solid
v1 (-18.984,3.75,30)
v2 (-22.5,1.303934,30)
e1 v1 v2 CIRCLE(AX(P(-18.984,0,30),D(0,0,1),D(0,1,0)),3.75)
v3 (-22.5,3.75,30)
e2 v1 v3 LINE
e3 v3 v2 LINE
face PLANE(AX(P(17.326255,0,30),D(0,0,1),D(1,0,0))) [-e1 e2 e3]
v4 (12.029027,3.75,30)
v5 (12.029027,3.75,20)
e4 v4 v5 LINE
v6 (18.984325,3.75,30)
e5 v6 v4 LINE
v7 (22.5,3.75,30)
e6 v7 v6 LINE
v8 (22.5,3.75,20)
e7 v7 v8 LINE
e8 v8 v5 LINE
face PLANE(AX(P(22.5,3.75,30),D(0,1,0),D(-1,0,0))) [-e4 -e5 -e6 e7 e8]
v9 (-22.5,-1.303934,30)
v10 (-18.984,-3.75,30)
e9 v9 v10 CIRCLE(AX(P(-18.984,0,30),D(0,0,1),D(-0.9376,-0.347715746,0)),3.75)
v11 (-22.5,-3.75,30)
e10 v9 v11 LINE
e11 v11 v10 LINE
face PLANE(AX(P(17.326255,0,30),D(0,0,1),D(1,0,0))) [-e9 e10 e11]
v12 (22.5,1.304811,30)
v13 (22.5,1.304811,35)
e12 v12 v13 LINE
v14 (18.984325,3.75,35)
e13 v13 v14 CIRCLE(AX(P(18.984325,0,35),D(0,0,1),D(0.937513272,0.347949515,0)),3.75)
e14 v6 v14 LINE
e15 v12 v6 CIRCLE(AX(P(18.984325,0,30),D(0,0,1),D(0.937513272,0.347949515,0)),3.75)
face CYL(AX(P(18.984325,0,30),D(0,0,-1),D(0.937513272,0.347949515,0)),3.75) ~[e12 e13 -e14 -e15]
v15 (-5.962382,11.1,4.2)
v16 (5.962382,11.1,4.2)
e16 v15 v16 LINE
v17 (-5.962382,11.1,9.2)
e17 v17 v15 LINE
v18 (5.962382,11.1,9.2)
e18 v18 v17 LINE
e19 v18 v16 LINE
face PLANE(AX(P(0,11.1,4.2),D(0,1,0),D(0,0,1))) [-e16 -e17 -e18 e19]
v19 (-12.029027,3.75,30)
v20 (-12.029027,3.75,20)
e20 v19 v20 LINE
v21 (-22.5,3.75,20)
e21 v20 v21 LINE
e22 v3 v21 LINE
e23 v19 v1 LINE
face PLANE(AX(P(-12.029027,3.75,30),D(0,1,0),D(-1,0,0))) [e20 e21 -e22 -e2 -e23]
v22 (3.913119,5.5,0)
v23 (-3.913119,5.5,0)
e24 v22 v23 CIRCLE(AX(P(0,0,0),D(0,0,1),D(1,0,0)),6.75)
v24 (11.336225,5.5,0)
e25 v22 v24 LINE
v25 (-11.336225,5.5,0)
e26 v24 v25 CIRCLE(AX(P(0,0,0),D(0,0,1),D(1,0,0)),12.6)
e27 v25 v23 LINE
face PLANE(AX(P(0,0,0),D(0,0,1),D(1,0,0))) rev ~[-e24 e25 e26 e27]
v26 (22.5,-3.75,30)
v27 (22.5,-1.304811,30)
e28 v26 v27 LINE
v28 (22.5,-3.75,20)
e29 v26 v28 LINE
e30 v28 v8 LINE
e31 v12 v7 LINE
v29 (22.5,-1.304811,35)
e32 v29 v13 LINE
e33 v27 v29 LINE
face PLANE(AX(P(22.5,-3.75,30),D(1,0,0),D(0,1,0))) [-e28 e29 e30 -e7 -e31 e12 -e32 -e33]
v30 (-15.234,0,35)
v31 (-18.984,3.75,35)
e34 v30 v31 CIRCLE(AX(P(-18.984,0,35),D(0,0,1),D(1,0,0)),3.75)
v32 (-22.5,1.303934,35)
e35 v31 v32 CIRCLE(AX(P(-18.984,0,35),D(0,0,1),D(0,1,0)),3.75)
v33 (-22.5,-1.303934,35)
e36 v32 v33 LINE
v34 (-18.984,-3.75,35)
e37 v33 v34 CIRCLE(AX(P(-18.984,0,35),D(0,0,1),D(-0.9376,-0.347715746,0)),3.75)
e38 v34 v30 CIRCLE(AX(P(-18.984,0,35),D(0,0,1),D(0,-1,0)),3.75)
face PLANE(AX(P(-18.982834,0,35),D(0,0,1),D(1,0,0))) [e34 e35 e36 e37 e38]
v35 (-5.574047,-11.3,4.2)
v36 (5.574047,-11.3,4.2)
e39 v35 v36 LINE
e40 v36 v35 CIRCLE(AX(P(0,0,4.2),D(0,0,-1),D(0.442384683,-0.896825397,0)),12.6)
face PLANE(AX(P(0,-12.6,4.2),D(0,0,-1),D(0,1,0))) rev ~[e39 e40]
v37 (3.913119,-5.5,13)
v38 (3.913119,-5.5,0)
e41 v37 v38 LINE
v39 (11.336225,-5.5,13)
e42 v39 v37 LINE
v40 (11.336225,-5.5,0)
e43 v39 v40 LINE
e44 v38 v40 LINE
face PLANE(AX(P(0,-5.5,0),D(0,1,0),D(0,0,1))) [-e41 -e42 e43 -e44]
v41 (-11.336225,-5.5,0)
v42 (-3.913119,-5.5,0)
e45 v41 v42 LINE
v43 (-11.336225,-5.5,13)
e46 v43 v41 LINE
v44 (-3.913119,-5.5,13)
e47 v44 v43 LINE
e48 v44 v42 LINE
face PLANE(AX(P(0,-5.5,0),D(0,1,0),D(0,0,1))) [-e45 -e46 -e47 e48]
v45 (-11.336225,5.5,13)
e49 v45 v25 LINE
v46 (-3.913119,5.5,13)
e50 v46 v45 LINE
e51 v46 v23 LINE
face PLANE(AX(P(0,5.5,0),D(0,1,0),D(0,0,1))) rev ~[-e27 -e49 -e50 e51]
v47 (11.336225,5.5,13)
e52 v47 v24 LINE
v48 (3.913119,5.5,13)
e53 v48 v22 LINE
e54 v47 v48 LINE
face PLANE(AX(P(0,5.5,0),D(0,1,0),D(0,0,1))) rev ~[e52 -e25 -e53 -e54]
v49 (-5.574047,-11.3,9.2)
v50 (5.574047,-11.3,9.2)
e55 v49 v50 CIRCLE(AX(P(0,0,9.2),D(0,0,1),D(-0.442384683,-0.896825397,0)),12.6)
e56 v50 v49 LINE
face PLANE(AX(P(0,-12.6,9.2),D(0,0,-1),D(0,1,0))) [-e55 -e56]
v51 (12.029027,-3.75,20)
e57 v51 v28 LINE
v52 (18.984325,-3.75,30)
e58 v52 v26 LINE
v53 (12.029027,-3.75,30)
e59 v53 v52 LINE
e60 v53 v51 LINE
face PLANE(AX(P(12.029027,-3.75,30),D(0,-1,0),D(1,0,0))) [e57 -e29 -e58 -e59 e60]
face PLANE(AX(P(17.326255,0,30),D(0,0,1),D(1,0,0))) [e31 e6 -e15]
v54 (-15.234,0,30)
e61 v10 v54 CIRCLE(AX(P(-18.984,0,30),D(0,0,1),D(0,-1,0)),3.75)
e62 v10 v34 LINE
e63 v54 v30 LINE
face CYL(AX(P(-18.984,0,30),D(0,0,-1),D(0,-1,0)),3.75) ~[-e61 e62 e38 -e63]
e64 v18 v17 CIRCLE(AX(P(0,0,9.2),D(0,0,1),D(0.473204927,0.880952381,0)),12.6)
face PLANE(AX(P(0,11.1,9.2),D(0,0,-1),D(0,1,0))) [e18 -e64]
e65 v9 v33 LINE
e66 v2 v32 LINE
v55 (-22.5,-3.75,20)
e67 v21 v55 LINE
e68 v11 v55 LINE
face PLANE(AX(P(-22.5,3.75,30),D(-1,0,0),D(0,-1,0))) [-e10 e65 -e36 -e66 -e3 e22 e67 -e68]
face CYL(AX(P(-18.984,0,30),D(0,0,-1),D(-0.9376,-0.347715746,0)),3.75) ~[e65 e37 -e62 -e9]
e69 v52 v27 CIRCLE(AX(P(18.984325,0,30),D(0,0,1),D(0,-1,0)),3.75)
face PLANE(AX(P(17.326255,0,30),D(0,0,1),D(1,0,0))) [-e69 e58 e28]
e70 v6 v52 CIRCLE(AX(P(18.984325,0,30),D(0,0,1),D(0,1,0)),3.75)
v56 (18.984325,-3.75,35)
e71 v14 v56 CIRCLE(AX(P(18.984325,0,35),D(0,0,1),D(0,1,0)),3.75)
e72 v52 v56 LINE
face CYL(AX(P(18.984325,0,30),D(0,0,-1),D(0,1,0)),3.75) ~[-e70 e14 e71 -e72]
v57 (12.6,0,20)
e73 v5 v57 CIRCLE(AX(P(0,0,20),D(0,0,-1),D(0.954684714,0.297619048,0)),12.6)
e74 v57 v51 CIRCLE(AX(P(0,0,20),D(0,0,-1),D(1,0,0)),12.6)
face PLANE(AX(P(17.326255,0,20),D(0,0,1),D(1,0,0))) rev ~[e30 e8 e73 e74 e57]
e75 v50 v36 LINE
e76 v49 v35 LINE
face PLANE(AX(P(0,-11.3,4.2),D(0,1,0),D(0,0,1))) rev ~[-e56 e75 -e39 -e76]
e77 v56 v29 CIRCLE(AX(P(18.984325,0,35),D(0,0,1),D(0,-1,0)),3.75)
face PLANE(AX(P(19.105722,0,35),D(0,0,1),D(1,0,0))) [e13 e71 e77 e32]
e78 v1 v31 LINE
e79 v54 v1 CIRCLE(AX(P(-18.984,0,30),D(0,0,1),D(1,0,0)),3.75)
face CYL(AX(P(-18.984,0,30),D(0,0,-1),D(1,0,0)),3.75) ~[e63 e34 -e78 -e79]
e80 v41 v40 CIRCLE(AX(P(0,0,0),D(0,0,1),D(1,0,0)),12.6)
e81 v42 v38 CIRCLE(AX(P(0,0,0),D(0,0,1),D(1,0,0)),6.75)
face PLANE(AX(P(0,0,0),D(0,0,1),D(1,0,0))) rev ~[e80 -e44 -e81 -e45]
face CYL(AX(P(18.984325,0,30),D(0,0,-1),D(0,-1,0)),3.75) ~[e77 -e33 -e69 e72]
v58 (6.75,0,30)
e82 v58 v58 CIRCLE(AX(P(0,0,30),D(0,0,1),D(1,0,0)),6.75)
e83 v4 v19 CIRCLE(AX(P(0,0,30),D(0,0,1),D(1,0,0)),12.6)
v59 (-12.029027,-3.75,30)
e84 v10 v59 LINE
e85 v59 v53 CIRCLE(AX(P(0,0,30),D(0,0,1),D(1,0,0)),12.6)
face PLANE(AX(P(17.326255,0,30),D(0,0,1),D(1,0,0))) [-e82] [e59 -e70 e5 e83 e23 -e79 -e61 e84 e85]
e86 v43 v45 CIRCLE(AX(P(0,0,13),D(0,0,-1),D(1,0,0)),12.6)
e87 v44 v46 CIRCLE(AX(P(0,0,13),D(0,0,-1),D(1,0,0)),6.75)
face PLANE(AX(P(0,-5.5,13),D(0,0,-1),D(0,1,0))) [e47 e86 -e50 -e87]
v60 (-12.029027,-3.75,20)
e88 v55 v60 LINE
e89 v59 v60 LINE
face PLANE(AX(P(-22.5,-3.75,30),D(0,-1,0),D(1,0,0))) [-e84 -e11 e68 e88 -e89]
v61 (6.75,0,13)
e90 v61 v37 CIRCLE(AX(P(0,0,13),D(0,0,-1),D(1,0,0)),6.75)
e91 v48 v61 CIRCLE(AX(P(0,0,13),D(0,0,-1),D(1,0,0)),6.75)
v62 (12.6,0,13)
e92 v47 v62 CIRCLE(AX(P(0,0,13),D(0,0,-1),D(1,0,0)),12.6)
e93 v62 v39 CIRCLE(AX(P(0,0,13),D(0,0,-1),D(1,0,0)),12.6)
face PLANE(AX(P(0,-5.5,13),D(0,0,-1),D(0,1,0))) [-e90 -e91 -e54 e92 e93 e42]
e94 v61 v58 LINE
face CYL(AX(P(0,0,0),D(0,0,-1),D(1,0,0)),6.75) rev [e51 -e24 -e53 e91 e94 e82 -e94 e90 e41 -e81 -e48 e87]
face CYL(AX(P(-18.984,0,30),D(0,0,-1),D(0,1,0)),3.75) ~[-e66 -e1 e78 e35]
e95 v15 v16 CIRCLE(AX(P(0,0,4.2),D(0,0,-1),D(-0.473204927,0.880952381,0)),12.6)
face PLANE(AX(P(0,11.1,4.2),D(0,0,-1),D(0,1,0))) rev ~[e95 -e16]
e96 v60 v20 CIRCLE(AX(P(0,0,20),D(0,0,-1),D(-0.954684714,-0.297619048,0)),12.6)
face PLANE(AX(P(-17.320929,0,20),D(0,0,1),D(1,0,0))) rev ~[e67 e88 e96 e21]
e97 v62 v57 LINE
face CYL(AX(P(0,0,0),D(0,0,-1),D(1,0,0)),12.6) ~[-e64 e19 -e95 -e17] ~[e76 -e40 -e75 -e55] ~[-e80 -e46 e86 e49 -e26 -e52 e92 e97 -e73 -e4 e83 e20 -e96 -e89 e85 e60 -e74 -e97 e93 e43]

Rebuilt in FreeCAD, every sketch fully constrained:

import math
import FreeCAD as App
import Part
import Sketcher

doc = App.newDocument("Part")
body = doc.addObject("PartDesign::Body", "Body")

# Sketch on XY plane
sketch1 = body.newObject("Sketcher::SketchObject", "Sketch")
sketch1.AttachmentSupport = (doc.getObject("XY_Plane"), [""])
sketch1.MapMode = "FlatFace"
sketch1.addGeometry([
    Part.Circle(App.Vector(0, 0, 0), App.Vector(0, 0, 1), 12.6),
    Part.Circle(App.Vector(0, 0, 0), App.Vector(0, 0, 1), 6.75),
], False)
sketch1.addConstraint([
    Sketcher.Constraint("Coincident", 0, 3, -1, 1),
    Sketcher.Constraint("Coincident", 1, 3, -1, 1),
    Sketcher.Constraint("Diameter", 0, 25.2),
    Sketcher.Constraint("Diameter", 1, 13.5),
])
pad1 = body.newObject("PartDesign::Pad", "Pad")
pad1.Profile = sketch1
pad1.Length = 30
body2 = doc.addObject("PartDesign::Body", "Body001")

# Sketch on YZ plane
sketch2 = body2.newObject("Sketcher::SketchObject", "Sketch001")
sketch2.AttachmentSupport = (doc.getObject("YZ_Plane001"), [""])
sketch2.MapMode = "FlatFace"
sketch2.addGeometry([
    Part.LineSegment(App.Vector(-5.5, 13, 0), App.Vector(-5.5, 0, 0)),
    Part.LineSegment(App.Vector(-5.5, 0, 0), App.Vector(5.5, 0, 0)),
    Part.LineSegment(App.Vector(5.5, 0, 0), App.Vector(5.5, 13, 0)),
    Part.LineSegment(App.Vector(5.5, 13, 0), App.Vector(-5.5, 13, 0)),
], False)
sketch2.addConstraint([
    Sketcher.Constraint("Coincident", 0, 2, 1, 1),
    Sketcher.Constraint("Coincident", 1, 2, 2, 1),
    Sketcher.Constraint("Coincident", 2, 2, 3, 1),
    Sketcher.Constraint("Coincident", 3, 2, 0, 1),
    Sketcher.Constraint("Vertical", 0),
    Sketcher.Constraint("Horizontal", 1),
    Sketcher.Constraint("Vertical", 2),
    Sketcher.Constraint("Horizontal", 3),
    Sketcher.Constraint("Symmetric", 0, 2, 1, 2, -1, 1),
    Sketcher.Constraint("DistanceX", 1, 1, 1, 2, 11.0),
    Sketcher.Constraint("DistanceY", 0, 2, 0, 1, 13.0),
])
pad2 = body2.newObject("PartDesign::Pad", "Pad001")
pad2.Profile = sketch2
pad2.Length = 30
pad2.Midplane = True
doc.recompute()

boolean = body.newObject("PartDesign::Boolean", "Boolean")
boolean.Type = "Cut"
boolean.addObjects([body2])

# Sketch on YZ plane
sketch3 = body.newObject("Sketcher::SketchObject", "Sketch002")
sketch3.AttachmentSupport = (doc.getObject("YZ_Plane"), [""])
sketch3.MapMode = "FlatFace"
sketch3.addGeometry([
    Part.LineSegment(App.Vector(-12.6, 9.2, 0), App.Vector(-12.6, 4.2, 0)),
    Part.LineSegment(App.Vector(-12.6, 4.2, 0), App.Vector(-11.3, 4.2, 0)),
    Part.LineSegment(App.Vector(-11.3, 4.2, 0), App.Vector(-11.3, 9.2, 0)),
    Part.LineSegment(App.Vector(-11.3, 9.2, 0), App.Vector(-12.6, 9.2, 0)),
], False)
sketch3.addConstraint([
    Sketcher.Constraint("Coincident", 0, 2, 1, 1),
    Sketcher.Constraint("Coincident", 1, 2, 2, 1),
    Sketcher.Constraint("Coincident", 2, 2, 3, 1),
    Sketcher.Constraint("Coincident", 3, 2, 0, 1),
    Sketcher.Constraint("Vertical", 0),
    Sketcher.Constraint("Horizontal", 1),
    Sketcher.Constraint("Vertical", 2),
    Sketcher.Constraint("Horizontal", 3),
    Sketcher.Constraint("DistanceY", 0, 2, 0, 1, 5.0),
    Sketcher.Constraint("DistanceX", 1, 1, 1, 2, 1.3),
    Sketcher.Constraint("DistanceX", 0, 2, -1, 1, 12.6),
    Sketcher.Constraint("DistanceY", -1, 1, 0, 2, 4.2),
])
pocket1 = body.newObject("PartDesign::Pocket", "Pocket")
pocket1.Profile = sketch3
pocket1.Length = 25
pocket1.Midplane = True

# Sketch on YZ plane
sketch4 = body.newObject("Sketcher::SketchObject", "Sketch003")
sketch4.AttachmentSupport = (doc.getObject("YZ_Plane"), [""])
sketch4.MapMode = "FlatFace"
sketch4.addGeometry([
    Part.LineSegment(App.Vector(11.1, 9.2, 0), App.Vector(11.1, 4.2, 0)),
    Part.LineSegment(App.Vector(11.1, 4.2, 0), App.Vector(12.6, 4.2, 0)),
    Part.LineSegment(App.Vector(12.6, 4.2, 0), App.Vector(12.6, 9.2, 0)),
    Part.LineSegment(App.Vector(12.6, 9.2, 0), App.Vector(11.1, 9.2, 0)),
], False)
sketch4.addConstraint([
    Sketcher.Constraint("Coincident", 0, 2, 1, 1),
    Sketcher.Constraint("Coincident", 1, 2, 2, 1),
    Sketcher.Constraint("Coincident", 2, 2, 3, 1),
    Sketcher.Constraint("Coincident", 3, 2, 0, 1),
    Sketcher.Constraint("Vertical", 0),
    Sketcher.Constraint("Horizontal", 1),
    Sketcher.Constraint("Vertical", 2),
    Sketcher.Constraint("Horizontal", 3),
    Sketcher.Constraint("DistanceY", 0, 2, 0, 1, 5.0),
    Sketcher.Constraint("DistanceX", 1, 1, 1, 2, 1.5),
    Sketcher.Constraint("DistanceX", -1, 1, 0, 2, 11.1),
    Sketcher.Constraint("DistanceY", -1, 1, 0, 2, 4.2),
])
pocket2 = body.newObject("PartDesign::Pocket", "Pocket001")
pocket2.Profile = sketch4
pocket2.Length = 25
pocket2.Midplane = True

# Sketch on XY plane
sketch5 = body.newObject("Sketcher::SketchObject", "Sketch004")
sketch5.AttachmentSupport = (doc.getObject("XY_Plane"), [""])
sketch5.MapMode = "FlatFace"
sketch5.AttachmentOffset = App.Placement(App.Vector(0, 0, 30), App.Rotation())
sketch5.addGeometry([
    Part.LineSegment(App.Vector(-12.029027, 3.75, 0), App.Vector(-22.5, 3.75, 0)),  # 0
    Part.LineSegment(App.Vector(-22.5, 3.75, 0), App.Vector(-22.5, -3.75, 0)),  # 1
    Part.LineSegment(App.Vector(-22.5, -3.75, 0), App.Vector(-12.029027, -3.75, 0)),  # 2
    Part.ArcOfCircle(Part.Circle(App.Vector(0, 0, 0), App.Vector(0, 0, 1), 12.6), math.radians(162.685346), math.radians(197.314654)),  # 3
    Part.LineSegment(App.Vector(22.5, 3.75, 0), App.Vector(12.029027, 3.75, 0)),  # 4
    Part.ArcOfCircle(Part.Circle(App.Vector(0, 0, 0), App.Vector(0, 0, 1), 12.6), math.radians(0), math.radians(17.314654)),  # 5
    Part.ArcOfCircle(Part.Circle(App.Vector(0, 0, 0), App.Vector(0, 0, 1), 12.6), math.radians(-17.314654), math.radians(0)),  # 6
    Part.LineSegment(App.Vector(12.029027, -3.75, 0), App.Vector(22.5, -3.75, 0)),  # 7
    Part.LineSegment(App.Vector(22.5, -3.75, 0), App.Vector(22.5, 3.75, 0)),  # 8
], False)
sketch5.addConstraint([
    Sketcher.Constraint("Coincident", 0, 2, 1, 1),
    Sketcher.Constraint("Coincident", 1, 2, 2, 1),
    Sketcher.Constraint("Coincident", 2, 2, 3, 2),
    Sketcher.Constraint("Coincident", 3, 1, 0, 1),
    Sketcher.Constraint("Coincident", 4, 2, 5, 2),
    Sketcher.Constraint("Tangent", 5, 1, 6, 2),
    Sketcher.Constraint("Coincident", 6, 1, 7, 1),
    Sketcher.Constraint("Coincident", 7, 2, 8, 1),
    Sketcher.Constraint("Coincident", 8, 2, 4, 1),
    Sketcher.Constraint("Horizontal", 0),
    Sketcher.Constraint("Vertical", 1),
    Sketcher.Constraint("Horizontal", 2),
    Sketcher.Constraint("Horizontal", 4),
    Sketcher.Constraint("Horizontal", 7),
    Sketcher.Constraint("Vertical", 8),
    Sketcher.Constraint("Coincident", 3, 3, -1, 1),
    Sketcher.Constraint("Coincident", 5, 3, -1, 1),
    Sketcher.Constraint("Equal", 3, 5),
    Sketcher.Constraint("Equal", 5, 6),
    Sketcher.Constraint("Symmetric", 0, 2, 7, 2, -1, 1),
    Sketcher.Constraint("PointOnObject", 5, 1, -1),
    Sketcher.Constraint("Horizontal", 3, 1, 4, 2),
    Sketcher.Constraint("Horizontal", 2, 2, 6, 1),
    Sketcher.Constraint("Radius", 3, 12.6),
    Sketcher.Constraint("DistanceY", 1, 2, 1, 1, 7.5),
    Sketcher.Constraint("DistanceX", 0, 2, -1, 1, 22.5),
])
pad3 = body.newObject("PartDesign::Pad", "Pad002")
pad3.Profile = sketch5
pad3.Length = 10
pad3.Reversed = True

# Sketch on XY plane
sketch6 = body.newObject("Sketcher::SketchObject", "Sketch005")
sketch6.AttachmentSupport = (doc.getObject("XY_Plane"), [""])
sketch6.MapMode = "FlatFace"
sketch6.AttachmentOffset = App.Placement(App.Vector(0, 0, 30), App.Rotation())
sketch6.addGeometry([
    Part.ArcOfCircle(Part.Circle(App.Vector(-18.984, 0, 0), App.Vector(0, 0, 1), 3.75), math.radians(-90), math.radians(0)),  # 0
    Part.ArcOfCircle(Part.Circle(App.Vector(-18.984, 0, 0), App.Vector(0, 0, 1), 3.75), math.radians(0), math.radians(90)),  # 1
    Part.ArcOfCircle(Part.Circle(App.Vector(-18.984, 0, 0), App.Vector(0, 0, 1), 3.75), math.radians(90), math.radians(159.652337)),  # 2
    Part.LineSegment(App.Vector(-22.5, 1.303934, 0), App.Vector(-22.5, -1.303934, 0)),  # 3
    Part.ArcOfCircle(Part.Circle(App.Vector(-18.984, 0, 0), App.Vector(0, 0, 1), 3.75), math.radians(-159.652337), math.radians(-90)),  # 4
    Part.ArcOfCircle(Part.Circle(App.Vector(18.984325, 0, 0), App.Vector(0, 0, 1), 3.75), math.radians(20.361949), math.radians(90)),  # 5
    Part.ArcOfCircle(Part.Circle(App.Vector(18.984325, 0, 0), App.Vector(0, 0, 1), 3.75), math.radians(90), math.radians(270)),  # 6
    Part.ArcOfCircle(Part.Circle(App.Vector(18.984325, 0, 0), App.Vector(0, 0, 1), 3.75), math.radians(-90), math.radians(-20.361949)),  # 7
    Part.LineSegment(App.Vector(22.5, -1.304811, 0), App.Vector(22.5, 1.304811, 0)),  # 8
], False)
sketch6.addConstraint([
    Sketcher.Constraint("Tangent", 0, 2, 1, 1),
    Sketcher.Constraint("Tangent", 1, 2, 2, 1),
    Sketcher.Constraint("Coincident", 2, 2, 3, 1),
    Sketcher.Constraint("Coincident", 3, 2, 4, 1),
    Sketcher.Constraint("Tangent", 4, 2, 0, 1),
    Sketcher.Constraint("Tangent", 5, 2, 6, 1),
    Sketcher.Constraint("Tangent", 6, 2, 7, 1),
    Sketcher.Constraint("Coincident", 7, 2, 8, 1),
    Sketcher.Constraint("Coincident", 8, 2, 5, 1),
    Sketcher.Constraint("Vertical", 3),
    Sketcher.Constraint("Vertical", 8),
    Sketcher.Constraint("Coincident", 2, 3, 0, 3),
    Sketcher.Constraint("Equal", 2, 4),
    Sketcher.Constraint("Equal", 4, 5),
    Sketcher.Constraint("Equal", 5, 6),
    Sketcher.Constraint("Equal", 6, 7),
    Sketcher.Constraint("Symmetric", 1, 2, 4, 2, -1),
    Sketcher.Constraint("Symmetric", 5, 2, 6, 2, -1),
    Sketcher.Constraint("PointOnObject", 0, 2, -1),
    Sketcher.Constraint("Vertical", 4, 3, 1, 2),
    Sketcher.Constraint("Vertical", 7, 3, 5, 2),
    Sketcher.Constraint("Radius", 0, 3.75),
    Sketcher.Constraint("DistanceX", 2, 2, -1, 1, 22.5),
    Sketcher.Constraint("DistanceX", -1, 1, 7, 2, 22.5),
    Sketcher.Constraint("DistanceX", 0, 3, -1, 1, 18.984),
    Sketcher.Constraint("DistanceY", 8, 1, 8, 2, 2.609621),
])
pad4 = body.newObject("PartDesign::Pad", "Pad003")
pad4.Profile = sketch6
pad4.Length = 5

doc.recompute()
